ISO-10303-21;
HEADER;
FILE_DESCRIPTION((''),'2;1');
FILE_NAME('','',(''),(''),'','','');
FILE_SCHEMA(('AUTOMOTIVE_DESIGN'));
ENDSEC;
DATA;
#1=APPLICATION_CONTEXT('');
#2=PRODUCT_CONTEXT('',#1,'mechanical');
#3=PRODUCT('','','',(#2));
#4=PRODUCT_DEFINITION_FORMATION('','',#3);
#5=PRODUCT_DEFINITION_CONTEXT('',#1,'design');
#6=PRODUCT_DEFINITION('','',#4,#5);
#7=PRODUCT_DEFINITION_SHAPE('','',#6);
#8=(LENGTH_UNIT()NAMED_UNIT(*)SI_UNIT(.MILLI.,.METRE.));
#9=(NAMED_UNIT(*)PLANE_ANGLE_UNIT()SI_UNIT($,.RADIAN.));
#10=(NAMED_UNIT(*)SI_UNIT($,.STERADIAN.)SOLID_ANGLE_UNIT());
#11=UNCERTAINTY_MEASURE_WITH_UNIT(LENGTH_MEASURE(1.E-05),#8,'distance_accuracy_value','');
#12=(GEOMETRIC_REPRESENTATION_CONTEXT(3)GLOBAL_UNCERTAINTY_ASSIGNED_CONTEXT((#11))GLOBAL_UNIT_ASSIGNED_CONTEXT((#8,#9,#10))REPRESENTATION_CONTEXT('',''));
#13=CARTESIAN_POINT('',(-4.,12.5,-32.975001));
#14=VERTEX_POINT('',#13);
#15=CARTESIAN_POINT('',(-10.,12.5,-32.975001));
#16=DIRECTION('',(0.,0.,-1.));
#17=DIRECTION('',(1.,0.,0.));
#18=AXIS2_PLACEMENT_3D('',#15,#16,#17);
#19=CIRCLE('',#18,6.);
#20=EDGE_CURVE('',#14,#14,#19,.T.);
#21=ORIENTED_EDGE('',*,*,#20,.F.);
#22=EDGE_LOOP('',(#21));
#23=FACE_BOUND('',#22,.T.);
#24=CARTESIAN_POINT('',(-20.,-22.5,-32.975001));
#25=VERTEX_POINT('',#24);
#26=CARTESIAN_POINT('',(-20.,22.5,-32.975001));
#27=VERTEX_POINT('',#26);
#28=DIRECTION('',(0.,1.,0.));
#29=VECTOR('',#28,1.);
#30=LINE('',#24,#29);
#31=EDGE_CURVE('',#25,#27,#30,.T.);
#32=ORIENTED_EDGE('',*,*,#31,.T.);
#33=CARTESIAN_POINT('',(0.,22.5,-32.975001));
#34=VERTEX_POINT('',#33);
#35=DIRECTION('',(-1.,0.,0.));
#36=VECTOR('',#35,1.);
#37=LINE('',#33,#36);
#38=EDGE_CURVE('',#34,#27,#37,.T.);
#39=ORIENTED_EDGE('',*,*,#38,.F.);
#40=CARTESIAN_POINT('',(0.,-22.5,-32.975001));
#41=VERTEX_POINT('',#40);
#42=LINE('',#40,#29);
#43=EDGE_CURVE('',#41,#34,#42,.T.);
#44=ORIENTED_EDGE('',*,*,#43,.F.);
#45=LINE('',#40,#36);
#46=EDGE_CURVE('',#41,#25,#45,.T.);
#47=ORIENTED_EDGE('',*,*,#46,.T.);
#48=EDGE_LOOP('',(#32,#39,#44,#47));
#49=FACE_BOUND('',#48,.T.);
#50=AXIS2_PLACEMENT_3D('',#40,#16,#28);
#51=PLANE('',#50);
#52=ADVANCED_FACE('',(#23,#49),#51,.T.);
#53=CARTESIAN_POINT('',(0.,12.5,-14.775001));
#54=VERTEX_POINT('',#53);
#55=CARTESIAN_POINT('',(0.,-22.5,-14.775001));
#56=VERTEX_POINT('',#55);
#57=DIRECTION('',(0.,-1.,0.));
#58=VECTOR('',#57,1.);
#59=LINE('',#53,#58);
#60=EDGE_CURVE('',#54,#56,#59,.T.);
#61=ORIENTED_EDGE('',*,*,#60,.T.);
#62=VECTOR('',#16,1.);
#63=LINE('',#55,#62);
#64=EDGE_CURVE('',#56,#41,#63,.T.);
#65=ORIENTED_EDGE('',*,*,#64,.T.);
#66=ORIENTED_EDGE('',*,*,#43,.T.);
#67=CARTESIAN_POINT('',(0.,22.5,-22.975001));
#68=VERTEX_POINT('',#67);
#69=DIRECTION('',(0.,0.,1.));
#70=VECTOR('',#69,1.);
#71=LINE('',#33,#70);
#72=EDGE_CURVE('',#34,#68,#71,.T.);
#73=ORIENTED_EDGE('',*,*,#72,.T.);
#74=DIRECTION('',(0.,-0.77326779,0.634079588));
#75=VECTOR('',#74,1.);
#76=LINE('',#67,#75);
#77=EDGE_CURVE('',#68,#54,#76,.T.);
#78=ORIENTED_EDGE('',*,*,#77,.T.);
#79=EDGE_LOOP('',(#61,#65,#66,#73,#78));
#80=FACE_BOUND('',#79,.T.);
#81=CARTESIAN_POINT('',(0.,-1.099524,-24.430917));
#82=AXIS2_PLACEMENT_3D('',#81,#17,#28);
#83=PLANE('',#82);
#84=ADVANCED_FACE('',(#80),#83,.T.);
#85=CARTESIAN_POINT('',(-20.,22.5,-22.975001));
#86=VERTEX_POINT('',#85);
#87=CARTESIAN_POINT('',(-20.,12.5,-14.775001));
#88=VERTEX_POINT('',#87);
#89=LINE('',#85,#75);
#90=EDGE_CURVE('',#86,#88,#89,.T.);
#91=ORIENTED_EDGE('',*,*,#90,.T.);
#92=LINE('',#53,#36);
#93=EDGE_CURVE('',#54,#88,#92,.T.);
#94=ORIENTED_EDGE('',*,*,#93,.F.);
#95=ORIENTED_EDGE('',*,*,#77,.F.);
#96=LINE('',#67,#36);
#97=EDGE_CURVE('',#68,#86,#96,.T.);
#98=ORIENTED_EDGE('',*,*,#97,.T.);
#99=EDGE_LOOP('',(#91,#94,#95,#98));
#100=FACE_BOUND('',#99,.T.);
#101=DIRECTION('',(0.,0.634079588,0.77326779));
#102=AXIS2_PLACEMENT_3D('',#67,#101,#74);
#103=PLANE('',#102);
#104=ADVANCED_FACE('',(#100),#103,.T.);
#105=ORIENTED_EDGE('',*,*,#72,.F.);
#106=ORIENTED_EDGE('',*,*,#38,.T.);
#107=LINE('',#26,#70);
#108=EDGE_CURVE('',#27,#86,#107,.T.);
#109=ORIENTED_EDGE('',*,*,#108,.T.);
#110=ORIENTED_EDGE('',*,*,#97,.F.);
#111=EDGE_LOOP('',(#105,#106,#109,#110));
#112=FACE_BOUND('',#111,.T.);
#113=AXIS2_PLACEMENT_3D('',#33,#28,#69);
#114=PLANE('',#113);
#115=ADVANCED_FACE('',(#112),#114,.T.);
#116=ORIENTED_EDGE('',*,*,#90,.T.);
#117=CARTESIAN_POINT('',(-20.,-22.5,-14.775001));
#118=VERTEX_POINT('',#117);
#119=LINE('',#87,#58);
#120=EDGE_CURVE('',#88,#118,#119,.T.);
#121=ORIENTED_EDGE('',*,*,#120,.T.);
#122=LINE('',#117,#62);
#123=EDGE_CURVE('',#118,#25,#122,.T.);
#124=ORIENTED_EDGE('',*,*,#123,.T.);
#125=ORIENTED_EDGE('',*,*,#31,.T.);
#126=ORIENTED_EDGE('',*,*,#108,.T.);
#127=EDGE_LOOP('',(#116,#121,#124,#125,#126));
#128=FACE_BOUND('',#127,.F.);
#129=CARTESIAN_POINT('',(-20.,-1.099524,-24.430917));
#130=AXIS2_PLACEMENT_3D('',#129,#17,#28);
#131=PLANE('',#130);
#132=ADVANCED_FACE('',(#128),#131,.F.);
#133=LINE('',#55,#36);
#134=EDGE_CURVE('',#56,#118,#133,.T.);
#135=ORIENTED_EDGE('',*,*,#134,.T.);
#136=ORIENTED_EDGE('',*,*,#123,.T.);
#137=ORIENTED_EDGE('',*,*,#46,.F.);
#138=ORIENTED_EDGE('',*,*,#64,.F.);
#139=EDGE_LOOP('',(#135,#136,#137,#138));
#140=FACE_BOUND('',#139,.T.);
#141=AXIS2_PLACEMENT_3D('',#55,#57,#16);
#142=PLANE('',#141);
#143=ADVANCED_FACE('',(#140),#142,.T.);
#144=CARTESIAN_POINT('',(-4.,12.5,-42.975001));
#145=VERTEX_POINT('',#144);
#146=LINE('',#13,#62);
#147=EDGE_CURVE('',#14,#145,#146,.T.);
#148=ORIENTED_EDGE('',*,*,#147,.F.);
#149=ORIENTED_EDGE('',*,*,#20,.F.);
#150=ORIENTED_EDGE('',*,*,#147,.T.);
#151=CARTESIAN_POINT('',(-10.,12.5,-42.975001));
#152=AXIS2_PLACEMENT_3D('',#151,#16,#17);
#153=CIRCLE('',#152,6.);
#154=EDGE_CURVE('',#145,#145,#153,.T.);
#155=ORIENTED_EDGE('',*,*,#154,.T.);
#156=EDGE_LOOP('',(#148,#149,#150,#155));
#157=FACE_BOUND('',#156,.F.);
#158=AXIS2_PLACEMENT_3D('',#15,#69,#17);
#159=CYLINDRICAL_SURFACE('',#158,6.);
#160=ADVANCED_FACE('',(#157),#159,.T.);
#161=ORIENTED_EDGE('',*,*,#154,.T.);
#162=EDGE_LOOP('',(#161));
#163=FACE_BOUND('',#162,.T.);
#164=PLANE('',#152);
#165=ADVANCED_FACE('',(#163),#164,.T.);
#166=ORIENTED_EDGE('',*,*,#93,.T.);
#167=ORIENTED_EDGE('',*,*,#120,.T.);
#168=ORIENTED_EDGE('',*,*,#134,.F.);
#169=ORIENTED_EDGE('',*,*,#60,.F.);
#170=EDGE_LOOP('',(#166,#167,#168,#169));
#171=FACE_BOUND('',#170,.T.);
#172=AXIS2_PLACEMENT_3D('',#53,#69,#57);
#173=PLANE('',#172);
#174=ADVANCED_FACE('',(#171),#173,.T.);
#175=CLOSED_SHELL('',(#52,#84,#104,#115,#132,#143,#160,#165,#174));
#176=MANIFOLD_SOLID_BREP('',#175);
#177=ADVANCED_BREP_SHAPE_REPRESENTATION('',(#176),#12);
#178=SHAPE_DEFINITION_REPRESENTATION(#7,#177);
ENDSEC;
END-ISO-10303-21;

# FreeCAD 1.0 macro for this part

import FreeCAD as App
import Part
import Sketcher

V = App.Vector

doc = App.newDocument("Part")
body = doc.addObject("PartDesign::Body", "Body")

# Sketch on YZ plane
sketch1 = body.newObject("Sketcher::SketchObject", "Sketch")
sketch1.AttachmentSupport = (doc.getObject("YZ_Plane"), [""])
sketch1.MapMode = "FlatFace"
sketch1.addGeometry(Part.LineSegment(V(12, -15, 0), V(-22, -15, 0)), False)
sketch1.addGeometry(Part.LineSegment(V(-22, -15, 0), V(-22, -33, 0)), False)
sketch1.addGeometry(Part.LineSegment(V(-22, -33, 0), V(22, -33, 0)), False)
sketch1.addGeometry(Part.LineSegment(V(22, -33, 0), V(22, -23, 0)), False)
sketch1.addGeometry(Part.LineSegment(V(22, -23, 0), V(12, -15, 0)), False)
sketch1.addConstraint(Sketcher.Constraint("Coincident", 0, 2, 1, 1))
sketch1.addConstraint(Sketcher.Constraint("Coincident", 1, 2, 2, 1))
sketch1.addConstraint(Sketcher.Constraint("Coincident", 2, 2, 3, 1))
sketch1.addConstraint(Sketcher.Constraint("Coincident", 3, 2, 4, 1))
sketch1.addConstraint(Sketcher.Constraint("Coincident", 4, 2, 0, 1))
sketch1.addConstraint(Sketcher.Constraint("Horizontal", 0))
sketch1.addConstraint(Sketcher.Constraint("Vertical", 1))
sketch1.addConstraint(Sketcher.Constraint("Horizontal", 2))
sketch1.addConstraint(Sketcher.Constraint("Vertical", 3))
sketch1.addConstraint(Sketcher.Constraint("DistanceX", 0, 2, 0, 1, 35.0))
sketch1.addConstraint(Sketcher.Constraint("DistanceX", 2, 1, 2, 2, 45.0))
sketch1.addConstraint(Sketcher.Constraint("DistanceY", 3, 1, 3, 2, 10.0))
sketch1.addConstraint(Sketcher.Constraint("DistanceY", 1, 2, 1, 1, 18.2))
sketch1.addConstraint(Sketcher.Constraint("DistanceX", 0, 2, -1, 1, 22.5))
sketch1.addConstraint(Sketcher.Constraint("DistanceY", 0, 2, -1, 1, 14.775001))
pad1 = body.newObject("PartDesign::Pad", "Pad")
pad1.Profile = sketch1
pad1.Length = 20
pad1.Reversed = True

# Sketch on XY plane
sketch2 = body.newObject("Sketcher::SketchObject", "Sketch001")
sketch2.AttachmentSupport = (doc.getObject("XY_Plane"), [""])
sketch2.MapMode = "FlatFace"
sketch2.AttachmentOffset = App.Placement(V(0, 0, -32.975001), App.Rotation())
sketch2.addGeometry(Part.Circle(V(-10, 12, 0), V(0, 0, 1), 6), False)
sketch2.addConstraint(Sketcher.Constraint("Diameter", 0, 12.0))
sketch2.addConstraint(Sketcher.Constraint("DistanceX", 0, 3, -1, 1, 10.0))
sketch2.addConstraint(Sketcher.Constraint("DistanceY", -1, 1, 0, 3, 12.5))
pad2 = body.newObject("PartDesign::Pad", "Pad001")
pad2.Profile = sketch2
pad2.Length = 10
pad2.Reversed = True

doc.recompute()
